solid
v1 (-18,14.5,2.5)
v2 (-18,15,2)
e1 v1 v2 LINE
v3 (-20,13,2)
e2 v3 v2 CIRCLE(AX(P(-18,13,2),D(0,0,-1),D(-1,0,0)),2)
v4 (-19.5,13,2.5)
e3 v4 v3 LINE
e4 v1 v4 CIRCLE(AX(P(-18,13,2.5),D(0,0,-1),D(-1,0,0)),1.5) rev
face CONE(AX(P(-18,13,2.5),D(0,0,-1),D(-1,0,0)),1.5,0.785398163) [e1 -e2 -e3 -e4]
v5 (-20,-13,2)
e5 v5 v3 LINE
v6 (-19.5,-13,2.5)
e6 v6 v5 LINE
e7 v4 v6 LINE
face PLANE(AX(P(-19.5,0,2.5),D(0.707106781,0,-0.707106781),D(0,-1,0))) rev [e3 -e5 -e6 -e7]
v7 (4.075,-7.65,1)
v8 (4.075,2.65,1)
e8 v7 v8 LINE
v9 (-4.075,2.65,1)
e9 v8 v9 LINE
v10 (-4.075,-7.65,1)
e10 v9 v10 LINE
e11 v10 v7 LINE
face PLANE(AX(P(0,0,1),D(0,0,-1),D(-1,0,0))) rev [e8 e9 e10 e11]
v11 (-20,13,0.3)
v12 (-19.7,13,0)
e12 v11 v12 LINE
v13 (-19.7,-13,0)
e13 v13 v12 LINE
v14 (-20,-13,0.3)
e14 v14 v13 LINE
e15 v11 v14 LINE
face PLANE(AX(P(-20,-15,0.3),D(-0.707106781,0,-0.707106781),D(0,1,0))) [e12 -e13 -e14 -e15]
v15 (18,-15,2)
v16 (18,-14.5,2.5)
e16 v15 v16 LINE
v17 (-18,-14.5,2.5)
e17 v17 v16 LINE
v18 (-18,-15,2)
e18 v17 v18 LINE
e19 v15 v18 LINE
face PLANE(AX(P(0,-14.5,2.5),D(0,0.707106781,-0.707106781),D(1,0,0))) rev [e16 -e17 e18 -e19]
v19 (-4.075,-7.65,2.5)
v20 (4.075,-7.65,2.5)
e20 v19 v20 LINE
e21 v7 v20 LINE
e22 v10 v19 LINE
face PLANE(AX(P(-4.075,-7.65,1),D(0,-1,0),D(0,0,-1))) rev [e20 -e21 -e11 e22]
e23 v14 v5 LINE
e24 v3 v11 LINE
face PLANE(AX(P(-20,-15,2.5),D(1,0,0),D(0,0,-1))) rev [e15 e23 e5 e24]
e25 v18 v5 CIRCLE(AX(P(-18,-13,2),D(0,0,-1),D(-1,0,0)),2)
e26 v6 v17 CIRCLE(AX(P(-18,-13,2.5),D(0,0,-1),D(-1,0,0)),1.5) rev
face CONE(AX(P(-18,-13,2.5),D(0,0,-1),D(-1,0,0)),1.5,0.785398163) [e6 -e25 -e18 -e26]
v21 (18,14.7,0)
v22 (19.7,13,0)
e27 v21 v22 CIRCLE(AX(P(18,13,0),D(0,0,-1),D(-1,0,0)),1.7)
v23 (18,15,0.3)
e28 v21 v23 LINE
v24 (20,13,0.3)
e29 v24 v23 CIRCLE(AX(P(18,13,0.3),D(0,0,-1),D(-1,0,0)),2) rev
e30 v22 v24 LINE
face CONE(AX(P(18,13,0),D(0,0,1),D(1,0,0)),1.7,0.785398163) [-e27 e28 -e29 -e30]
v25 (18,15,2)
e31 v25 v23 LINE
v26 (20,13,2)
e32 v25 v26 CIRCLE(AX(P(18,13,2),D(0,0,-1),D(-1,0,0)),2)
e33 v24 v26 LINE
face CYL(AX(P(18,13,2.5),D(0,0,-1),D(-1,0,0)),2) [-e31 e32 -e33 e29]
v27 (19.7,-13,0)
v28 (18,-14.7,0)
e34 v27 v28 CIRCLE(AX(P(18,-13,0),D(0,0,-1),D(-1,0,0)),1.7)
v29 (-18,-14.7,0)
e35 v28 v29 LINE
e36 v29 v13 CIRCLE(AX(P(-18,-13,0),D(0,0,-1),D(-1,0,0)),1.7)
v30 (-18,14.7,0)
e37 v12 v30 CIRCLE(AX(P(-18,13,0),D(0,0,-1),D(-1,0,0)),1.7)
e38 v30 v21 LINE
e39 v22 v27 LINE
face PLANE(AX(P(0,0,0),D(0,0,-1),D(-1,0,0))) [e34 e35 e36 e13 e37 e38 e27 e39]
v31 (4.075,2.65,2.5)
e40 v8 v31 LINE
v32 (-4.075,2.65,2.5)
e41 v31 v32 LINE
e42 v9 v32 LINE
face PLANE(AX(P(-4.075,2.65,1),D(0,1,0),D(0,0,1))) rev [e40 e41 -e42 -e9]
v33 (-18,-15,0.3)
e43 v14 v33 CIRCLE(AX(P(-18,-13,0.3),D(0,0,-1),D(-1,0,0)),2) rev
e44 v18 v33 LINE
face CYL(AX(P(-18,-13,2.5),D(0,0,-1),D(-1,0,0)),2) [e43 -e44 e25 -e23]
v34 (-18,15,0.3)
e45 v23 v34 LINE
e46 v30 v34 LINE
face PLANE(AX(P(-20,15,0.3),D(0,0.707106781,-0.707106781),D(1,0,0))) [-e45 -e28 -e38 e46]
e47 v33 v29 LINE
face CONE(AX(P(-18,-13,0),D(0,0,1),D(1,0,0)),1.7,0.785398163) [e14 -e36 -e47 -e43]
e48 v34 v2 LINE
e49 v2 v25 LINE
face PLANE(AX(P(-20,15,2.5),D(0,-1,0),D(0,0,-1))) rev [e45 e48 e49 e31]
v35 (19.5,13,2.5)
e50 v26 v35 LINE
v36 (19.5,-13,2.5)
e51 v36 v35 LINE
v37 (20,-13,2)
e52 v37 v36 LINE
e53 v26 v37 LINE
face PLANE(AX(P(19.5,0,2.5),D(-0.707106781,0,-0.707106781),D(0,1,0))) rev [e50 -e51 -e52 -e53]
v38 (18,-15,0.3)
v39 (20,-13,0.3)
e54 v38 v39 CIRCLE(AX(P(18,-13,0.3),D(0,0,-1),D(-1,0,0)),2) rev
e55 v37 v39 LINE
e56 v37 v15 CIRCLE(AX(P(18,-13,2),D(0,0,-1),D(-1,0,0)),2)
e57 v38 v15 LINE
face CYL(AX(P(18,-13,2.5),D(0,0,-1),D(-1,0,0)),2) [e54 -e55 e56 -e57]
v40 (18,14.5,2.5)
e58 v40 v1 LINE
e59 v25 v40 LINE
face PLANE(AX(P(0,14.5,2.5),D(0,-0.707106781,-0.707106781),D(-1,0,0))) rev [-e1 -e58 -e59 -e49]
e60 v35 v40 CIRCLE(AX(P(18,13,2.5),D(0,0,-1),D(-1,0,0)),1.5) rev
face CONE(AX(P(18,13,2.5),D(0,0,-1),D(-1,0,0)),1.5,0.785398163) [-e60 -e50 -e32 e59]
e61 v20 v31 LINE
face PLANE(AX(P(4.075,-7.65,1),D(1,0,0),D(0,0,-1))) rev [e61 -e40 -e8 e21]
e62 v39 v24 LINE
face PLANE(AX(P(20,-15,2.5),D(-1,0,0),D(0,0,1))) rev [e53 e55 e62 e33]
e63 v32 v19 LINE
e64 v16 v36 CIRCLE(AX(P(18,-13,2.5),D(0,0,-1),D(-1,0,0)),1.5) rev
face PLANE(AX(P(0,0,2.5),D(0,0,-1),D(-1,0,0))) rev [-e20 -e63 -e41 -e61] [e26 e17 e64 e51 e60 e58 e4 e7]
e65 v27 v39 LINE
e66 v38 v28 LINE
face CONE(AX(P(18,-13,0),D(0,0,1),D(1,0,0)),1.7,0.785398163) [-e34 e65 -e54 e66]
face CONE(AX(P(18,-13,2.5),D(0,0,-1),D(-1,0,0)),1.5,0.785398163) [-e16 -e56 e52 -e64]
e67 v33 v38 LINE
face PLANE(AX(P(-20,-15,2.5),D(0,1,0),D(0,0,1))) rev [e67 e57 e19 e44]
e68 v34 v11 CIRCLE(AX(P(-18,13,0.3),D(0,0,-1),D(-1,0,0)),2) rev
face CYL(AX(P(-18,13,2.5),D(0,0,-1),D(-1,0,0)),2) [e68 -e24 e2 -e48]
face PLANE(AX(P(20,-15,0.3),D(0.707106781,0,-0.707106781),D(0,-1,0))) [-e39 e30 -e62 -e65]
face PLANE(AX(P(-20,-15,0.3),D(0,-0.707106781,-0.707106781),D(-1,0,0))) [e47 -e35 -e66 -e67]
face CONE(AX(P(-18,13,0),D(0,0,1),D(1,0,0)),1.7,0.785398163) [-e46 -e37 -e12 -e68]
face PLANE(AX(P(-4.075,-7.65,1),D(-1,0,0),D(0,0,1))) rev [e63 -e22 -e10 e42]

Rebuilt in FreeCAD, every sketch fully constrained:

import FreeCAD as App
import Part
import Sketcher

V = App.Vector


def edges_at(feature, points):
    """Names of the edges that pass closest to the given points."""
    edges = feature.Shape.Edges
    near = lambda p: min(range(len(edges)), key=lambda i: edges[i].distToShape(Part.Vertex(*p))[0])
    return sorted({f"Edge{near(p) + 1}" for p in points})


def add_polygon(sketch, points):
    """Adds a closed chain of lines whose ends are joined by coincident constraints."""
    first, n = sketch.GeometryCount, len(points)
    for a, b in zip(points, points[1:] + points[:1]):
        sketch.addGeometry(Part.LineSegment(App.Vector(*a, 0), App.Vector(*b, 0)), False)
    for i in range(n):
        sketch.addConstraint(Sketcher.Constraint("Coincident", first + i, 2, first + (i + 1) % n, 1))

doc = App.newDocument("Part")
body = doc.addObject("PartDesign::Body", "Body")

sketch1 = body.newObject("Sketcher::SketchObject", "Sketch")
sketch1.AttachmentSupport = (doc.getObject("XY_Plane"), [""])
sketch1.MapMode = "FlatFace"
add_polygon(sketch1, [(-20, 15), (-20, -15), (20, -15), (20, 15)])
sketch1.addConstraint(Sketcher.Constraint("Vertical", 0))
sketch1.addConstraint(Sketcher.Constraint("Horizontal", 1))
sketch1.addConstraint(Sketcher.Constraint("Vertical", 2))
sketch1.addConstraint(Sketcher.Constraint("Horizontal", 3))
sketch1.addConstraint(Sketcher.Constraint("Symmetric", 0, 2, 2, 2, -1, 1))
sketch1.addConstraint(Sketcher.Constraint("DistanceX", 1, 1, 1, 2, 40.0))
sketch1.addConstraint(Sketcher.Constraint("DistanceY", 0, 2, 0, 1, 30.0))
pad1 = body.newObject("PartDesign::Pad", "Pad")
pad1.Profile = sketch1
pad1.Length = 2.5

sketch2 = body.newObject("Sketcher::SketchObject", "Sketch001")
sketch2.AttachmentSupport = (doc.getObject("XY_Plane"), [""])
sketch2.MapMode = "FlatFace"
sketch2.AttachmentOffset = App.Placement(V(0, 0, 2.5), App.Rotation())
add_polygon(sketch2, [(-4, 3), (-4, -8), (4, -8), (4, 3)])
sketch2.addConstraint(Sketcher.Constraint("Vertical", 0))
sketch2.addConstraint(Sketcher.Constraint("Horizontal", 1))
sketch2.addConstraint(Sketcher.Constraint("Vertical", 2))
sketch2.addConstraint(Sketcher.Constraint("Horizontal", 3))
sketch2.addConstraint(Sketcher.Constraint("DistanceY", 0, 2, 0, 1, 10.3))
sketch2.addConstraint(Sketcher.Constraint("DistanceX", 1, 1, 1, 2, 8.15))
sketch2.addConstraint(Sketcher.Constraint("DistanceY", 0, 2, -1, 1, 7.65))
sketch2.addConstraint(Sketcher.Constraint("DistanceX", 0, 2, -1, 1, 4.075))
pocket1 = body.newObject("PartDesign::Pocket", "Pocket")
pocket1.Profile = sketch2
pocket1.Length = 1.5
doc.recompute()

fillet = body.newObject("PartDesign::Fillet", "Fillet")
fillet.Base = (pocket1, edges_at(pocket1, [
    (20, -15, 1.25),
    (-20, -15, 1.25),
    (-20, 15, 1.25),
    (20, 15, 1.25),
]))
fillet.Radius = 2
doc.recompute()

chamfer = body.newObject("PartDesign::Chamfer", "Chamfer")
chamfer.Base = (fillet, edges_at(fillet, [
    (0, -15, 2.5),
    (-20, 0, 2.5),
    (20, 0, 2.5),
    (0, 15, 2.5),
    (19.414, 14.414, 2.5),
    (-19.414, 14.414, 2.5),
    (19.414, -14.414, 2.5),
    (-19.414, -14.414, 2.5),
]))
chamfer.Size = 0.5
doc.recompute()

chamfer2 = body.newObject("PartDesign::Chamfer", "Chamfer001")
chamfer2.Base = (chamfer, edges_at(chamfer, [
    (0, -15, 0),
    (20, 0, 0),
    (-20, 0, 0),
    (0, 15, 0),
    (19.414, 14.414, 0),
    (-19.414, 14.414, 0),
    (19.414, -14.414, 0),
    (-19.414, -14.414, 0),
]))
chamfer2.Size = 0.3

doc.recompute()
